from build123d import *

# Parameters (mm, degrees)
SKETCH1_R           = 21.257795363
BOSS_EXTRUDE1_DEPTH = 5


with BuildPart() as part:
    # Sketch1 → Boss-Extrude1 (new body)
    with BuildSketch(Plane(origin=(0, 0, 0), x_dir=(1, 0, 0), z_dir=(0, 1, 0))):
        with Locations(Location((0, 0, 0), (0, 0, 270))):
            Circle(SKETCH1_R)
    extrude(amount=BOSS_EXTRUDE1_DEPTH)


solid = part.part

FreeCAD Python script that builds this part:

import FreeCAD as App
import Part
import Sketcher

V = App.Vector
Q = App.Units.Quantity

doc = App.newDocument("Part")
body = doc.addObject("PartDesign::Body", "Body")

sketch1 = body.newObject("Sketcher::SketchObject", "Sketch")
sketch1.AttachmentSupport = (doc.getObject("XZ_Plane"), [""])
sketch1.MapMode = "FlatFace"
sketch1.addGeometry(Part.Circle(V(0, 0, 0), V(0, 0, 1), 21), False)
sketch1.addConstraint([
    Sketcher.Constraint("Coincident", 0, 3, -1, 1),
    Sketcher.Constraint("Diameter", 0, Q("42.515591 mm")),
])
pad1 = body.newObject("PartDesign::Pad", "Pad")
pad1.Profile = sketch1
pad1.Length = 5
pad1.Reversed = True

doc.recompute()
